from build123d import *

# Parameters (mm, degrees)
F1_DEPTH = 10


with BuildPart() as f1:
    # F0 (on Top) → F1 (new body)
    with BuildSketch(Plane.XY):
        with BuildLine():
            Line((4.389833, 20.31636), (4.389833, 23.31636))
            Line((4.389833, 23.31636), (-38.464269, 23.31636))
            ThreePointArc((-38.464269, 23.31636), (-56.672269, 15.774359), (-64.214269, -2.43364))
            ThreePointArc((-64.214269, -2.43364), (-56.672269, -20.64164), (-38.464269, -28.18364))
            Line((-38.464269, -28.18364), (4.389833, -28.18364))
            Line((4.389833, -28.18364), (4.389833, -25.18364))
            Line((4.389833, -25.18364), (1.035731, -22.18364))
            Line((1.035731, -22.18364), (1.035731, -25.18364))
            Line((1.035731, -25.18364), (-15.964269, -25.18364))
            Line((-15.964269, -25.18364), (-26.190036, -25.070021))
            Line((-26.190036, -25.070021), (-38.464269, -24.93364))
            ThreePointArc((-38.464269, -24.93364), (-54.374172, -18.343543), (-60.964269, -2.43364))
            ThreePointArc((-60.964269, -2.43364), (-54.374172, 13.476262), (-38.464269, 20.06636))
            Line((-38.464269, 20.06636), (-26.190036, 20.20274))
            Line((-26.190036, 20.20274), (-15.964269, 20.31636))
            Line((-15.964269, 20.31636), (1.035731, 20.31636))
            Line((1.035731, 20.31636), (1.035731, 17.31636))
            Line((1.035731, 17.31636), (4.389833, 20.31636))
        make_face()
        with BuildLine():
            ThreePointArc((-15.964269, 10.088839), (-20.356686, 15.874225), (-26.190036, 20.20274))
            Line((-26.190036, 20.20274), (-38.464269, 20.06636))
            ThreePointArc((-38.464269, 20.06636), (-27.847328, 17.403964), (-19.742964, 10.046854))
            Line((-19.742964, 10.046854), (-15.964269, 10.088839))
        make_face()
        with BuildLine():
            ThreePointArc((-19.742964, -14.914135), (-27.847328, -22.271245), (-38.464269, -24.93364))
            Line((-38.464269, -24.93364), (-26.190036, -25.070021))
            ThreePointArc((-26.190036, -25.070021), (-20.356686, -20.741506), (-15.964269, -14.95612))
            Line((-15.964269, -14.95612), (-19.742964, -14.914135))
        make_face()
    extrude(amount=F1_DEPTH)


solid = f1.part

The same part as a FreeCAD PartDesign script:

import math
import FreeCAD as App
import Part
import Sketcher
from FreeCAD import Vector

doc = App.newDocument("Part")
params = doc.addObject("Spreadsheet::Sheet", "Params")
for row, (alias, value) in enumerate([
    ("sketch1_radius", "22.5 mm"),
    ("sketch1_width", "17 mm"),
    ("sketch1_height", "3 mm"),
    ("sketch1_radius2", "25.75 mm"),
    ("sketch1_length", "4.5 mm"),
    ("pad1_length", "10 mm"),
], start=1):
    params.set(f"A{row}", alias)
    params.set(f"B{row}", "=" + value)
    params.setAlias(f"B{row}", alias)

body = doc.addObject("PartDesign::Body", "Body")

sketch1 = doc.addObject("Sketcher::SketchObject", "Sketch")
body.addObject(sketch1)
sketch1.AttachmentSupport = (doc.XY_Plane, [""])
sketch1.MapMode = "FlatFace"
sketch1.addGeometry([
    Part.LineSegment(Vector(4.4, 20.3, 0), Vector(4.4, 23.3, 0)),
    Part.LineSegment(Vector(4.4, 23.3, 0), Vector(-38.5, 23.3, 0)),
    Part.ArcOfCircle(Part.Circle(Vector(-38.5, -2.4, 0), Vector(0, 0, 1), 25.8), math.radians(90), math.radians(180)),
    Part.ArcOfCircle(Part.Circle(Vector(-38.5, -2.4, 0), Vector(0, 0, 1), 25.7), math.radians(180), math.radians(270)),
    Part.LineSegment(Vector(-38.5, -28.2, 0), Vector(4.4, -28.2, 0)),
    Part.LineSegment(Vector(4.4, -28.2, 0), Vector(4.4, -25.2, 0)),
    Part.LineSegment(Vector(4.4, -25.2, 0), Vector(1, -22.2, 0)),
    Part.LineSegment(Vector(1, -22.2, 0), Vector(1, -25.2, 0)),
    Part.LineSegment(Vector(1, -25.2, 0), Vector(-16, -25.2, 0)),
    Part.LineSegment(Vector(-16, -25.2, 0), Vector(-26.2, -25.1, 0)),
    Part.ArcOfCircle(Part.Circle(Vector(-38.5, -2.4, 0), Vector(0, 0, 1), 25.8), math.radians(-62), math.radians(-29)),
    Part.LineSegment(Vector(-16, -15, 0), Vector(-19.7, -14.9, 0)),
    Part.ArcOfCircle(Part.Circle(Vector(-38.5, -2.4, 0), Vector(0, 0, 1), 22.5), math.radians(-90), math.radians(-34)),
    Part.ArcOfCircle(Part.Circle(Vector(-38.5, -2.4, 0), Vector(0, 0, 1), 22.5), math.radians(180), math.radians(270)),
    Part.ArcOfCircle(Part.Circle(Vector(-38.5, -2.4, 0), Vector(0, 0, 1), 22.5), math.radians(90), math.radians(180)),
    Part.ArcOfCircle(Part.Circle(Vector(-38.5, -2.4, 0), Vector(0, 0, 1), 22.5), math.radians(34), math.radians(90)),
    Part.LineSegment(Vector(-19.7, 10, 0), Vector(-16, 10.1, 0)),
    Part.ArcOfCircle(Part.Circle(Vector(-38.5, -2.4, 0), Vector(0, 0, 1), 25.8), math.radians(29), math.radians(62)),
    Part.LineSegment(Vector(-26.2, 20.2, 0), Vector(-16, 20.3, 0)),
    Part.LineSegment(Vector(-16, 20.3, 0), Vector(1, 20.3, 0)),
    Part.LineSegment(Vector(1, 20.3, 0), Vector(1, 17.3, 0)),
    Part.LineSegment(Vector(1, 17.3, 0), Vector(4.4, 20.3, 0)),
], False)
sketch1.addConstraint([
    Sketcher.Constraint("Coincident", 0, 2, 1, 1),
    Sketcher.Constraint("Tangent", 1, 2, 2, 1),
    Sketcher.Constraint("Tangent", 2, 2, 3, 1),
    Sketcher.Constraint("Tangent", 3, 2, 4, 1),
    Sketcher.Constraint("Coincident", 4, 2, 5, 1),
    Sketcher.Constraint("Coincident", 5, 2, 6, 1),
    Sketcher.Constraint("Coincident", 6, 2, 7, 1),
    Sketcher.Constraint("Coincident", 7, 2, 8, 1),
    Sketcher.Constraint("Coincident", 8, 2, 9, 1),
    Sketcher.Constraint("Coincident", 9, 2, 10, 1),
    Sketcher.Constraint("Coincident", 10, 2, 11, 1),
    Sketcher.Constraint("Coincident", 11, 2, 12, 2),
    Sketcher.Constraint("Tangent", 12, 1, 13, 2),
    Sketcher.Constraint("Tangent", 13, 1, 14, 2),
    Sketcher.Constraint("Tangent", 14, 1, 15, 2),
    Sketcher.Constraint("Coincident", 15, 1, 16, 1),
    Sketcher.Constraint("Coincident", 16, 2, 17, 1),
    Sketcher.Constraint("Coincident", 17, 2, 18, 1),
    Sketcher.Constraint("Coincident", 18, 2, 19, 1),
    Sketcher.Constraint("Coincident", 19, 2, 20, 1),
    Sketcher.Constraint("Coincident", 20, 2, 21, 1),
    Sketcher.Constraint("Coincident", 21, 2, 0, 1),
    Sketcher.Constraint("Vertical", 0),
    Sketcher.Constraint("Horizontal", 1),
    Sketcher.Constraint("Horizontal", 4),
    Sketcher.Constraint("Vertical", 5),
    Sketcher.Constraint("Vertical", 7),
    Sketcher.Constraint("Horizontal", 8),
    Sketcher.Constraint("Horizontal", 19),
    Sketcher.Constraint("Vertical", 20),
    Sketcher.Constraint("Coincident", 10, 3, 2, 3),
    Sketcher.Constraint("Coincident", 12, 3, 2, 3),
    Sketcher.Constraint("Coincident", 14, 3, 2, 3),
    Sketcher.Constraint("Coincident", 17, 3, 2, 3),
    Sketcher.Constraint("Equal", 2, 3),
    Sketcher.Constraint("Equal", 2, 10),
    Sketcher.Constraint("Equal", 10, 17),
    Sketcher.Constraint("Parallel", 9, 11),
    Sketcher.Constraint("Parallel", 16, 18),
    Sketcher.Constraint("Horizontal", 17, 3, 2, 2),
    Sketcher.Constraint("Horizontal", 5, 2, 7, 2),
    Sketcher.Constraint("Horizontal", 2, 2, 13, 1),
    Sketcher.Constraint("Horizontal", 19, 2, 21, 2),
    Sketcher.Constraint("Vertical", 0, 2, 4, 2),
    Sketcher.Constraint("Vertical", 8, 2, 10, 2),
    Sketcher.Constraint("Vertical", 3, 2, 12, 1),
    Sketcher.Constraint("Vertical", 12, 1, 14, 1),
    Sketcher.Constraint("Vertical", 11, 2, 15, 1),
    Sketcher.Constraint("Vertical", 10, 2, 16, 2),
    Sketcher.Constraint("Vertical", 9, 2, 17, 2),
    Sketcher.Constraint("Vertical", 16, 2, 18, 2),
    Sketcher.Constraint("Vertical", 7, 2, 19, 2),
    Sketcher.Constraint("Equal", 0, 5),
    Sketcher.Constraint("Equal", 5, 7),
    Sketcher.Constraint("Equal", 7, 20),
    Sketcher.Constraint("Radius", 12, 22.5),
    Sketcher.Constraint("DistanceX", 8, 2, 8, 1, 17.0),
    Sketcher.Constraint("DistanceY", 0, 1, 0, 2, 3.0),
    Sketcher.Constraint("Radius", 2, 25.75),
    Sketcher.Constraint("Distance", 6, 4.5),
    Sketcher.Constraint("DistanceX", 3, 2, 6, 2, 39.5),
    Sketcher.Constraint("Distance", 9, 10.226398),
    Sketcher.Constraint("DistanceX", 2, 3, -1, 1, 38.464269),
    Sketcher.Constraint("DistanceY", 2, 3, -1, 1, 2.43364),
])
sketch1.setExpression("Constraints[55]", "Params.sketch1_radius")
sketch1.setExpression("Constraints[56]", "Params.sketch1_width")
sketch1.setExpression("Constraints[57]", "Params.sketch1_height")
sketch1.setExpression("Constraints[58]", "Params.sketch1_radius2")
sketch1.setExpression("Constraints[59]", "Params.sketch1_length")
pad1 = doc.addObject("PartDesign::Pad", "Pad")
body.addObject(pad1)
pad1.Profile = sketch1
pad1.setExpression("Length", "Params.pad1_length")

doc.recompute()
